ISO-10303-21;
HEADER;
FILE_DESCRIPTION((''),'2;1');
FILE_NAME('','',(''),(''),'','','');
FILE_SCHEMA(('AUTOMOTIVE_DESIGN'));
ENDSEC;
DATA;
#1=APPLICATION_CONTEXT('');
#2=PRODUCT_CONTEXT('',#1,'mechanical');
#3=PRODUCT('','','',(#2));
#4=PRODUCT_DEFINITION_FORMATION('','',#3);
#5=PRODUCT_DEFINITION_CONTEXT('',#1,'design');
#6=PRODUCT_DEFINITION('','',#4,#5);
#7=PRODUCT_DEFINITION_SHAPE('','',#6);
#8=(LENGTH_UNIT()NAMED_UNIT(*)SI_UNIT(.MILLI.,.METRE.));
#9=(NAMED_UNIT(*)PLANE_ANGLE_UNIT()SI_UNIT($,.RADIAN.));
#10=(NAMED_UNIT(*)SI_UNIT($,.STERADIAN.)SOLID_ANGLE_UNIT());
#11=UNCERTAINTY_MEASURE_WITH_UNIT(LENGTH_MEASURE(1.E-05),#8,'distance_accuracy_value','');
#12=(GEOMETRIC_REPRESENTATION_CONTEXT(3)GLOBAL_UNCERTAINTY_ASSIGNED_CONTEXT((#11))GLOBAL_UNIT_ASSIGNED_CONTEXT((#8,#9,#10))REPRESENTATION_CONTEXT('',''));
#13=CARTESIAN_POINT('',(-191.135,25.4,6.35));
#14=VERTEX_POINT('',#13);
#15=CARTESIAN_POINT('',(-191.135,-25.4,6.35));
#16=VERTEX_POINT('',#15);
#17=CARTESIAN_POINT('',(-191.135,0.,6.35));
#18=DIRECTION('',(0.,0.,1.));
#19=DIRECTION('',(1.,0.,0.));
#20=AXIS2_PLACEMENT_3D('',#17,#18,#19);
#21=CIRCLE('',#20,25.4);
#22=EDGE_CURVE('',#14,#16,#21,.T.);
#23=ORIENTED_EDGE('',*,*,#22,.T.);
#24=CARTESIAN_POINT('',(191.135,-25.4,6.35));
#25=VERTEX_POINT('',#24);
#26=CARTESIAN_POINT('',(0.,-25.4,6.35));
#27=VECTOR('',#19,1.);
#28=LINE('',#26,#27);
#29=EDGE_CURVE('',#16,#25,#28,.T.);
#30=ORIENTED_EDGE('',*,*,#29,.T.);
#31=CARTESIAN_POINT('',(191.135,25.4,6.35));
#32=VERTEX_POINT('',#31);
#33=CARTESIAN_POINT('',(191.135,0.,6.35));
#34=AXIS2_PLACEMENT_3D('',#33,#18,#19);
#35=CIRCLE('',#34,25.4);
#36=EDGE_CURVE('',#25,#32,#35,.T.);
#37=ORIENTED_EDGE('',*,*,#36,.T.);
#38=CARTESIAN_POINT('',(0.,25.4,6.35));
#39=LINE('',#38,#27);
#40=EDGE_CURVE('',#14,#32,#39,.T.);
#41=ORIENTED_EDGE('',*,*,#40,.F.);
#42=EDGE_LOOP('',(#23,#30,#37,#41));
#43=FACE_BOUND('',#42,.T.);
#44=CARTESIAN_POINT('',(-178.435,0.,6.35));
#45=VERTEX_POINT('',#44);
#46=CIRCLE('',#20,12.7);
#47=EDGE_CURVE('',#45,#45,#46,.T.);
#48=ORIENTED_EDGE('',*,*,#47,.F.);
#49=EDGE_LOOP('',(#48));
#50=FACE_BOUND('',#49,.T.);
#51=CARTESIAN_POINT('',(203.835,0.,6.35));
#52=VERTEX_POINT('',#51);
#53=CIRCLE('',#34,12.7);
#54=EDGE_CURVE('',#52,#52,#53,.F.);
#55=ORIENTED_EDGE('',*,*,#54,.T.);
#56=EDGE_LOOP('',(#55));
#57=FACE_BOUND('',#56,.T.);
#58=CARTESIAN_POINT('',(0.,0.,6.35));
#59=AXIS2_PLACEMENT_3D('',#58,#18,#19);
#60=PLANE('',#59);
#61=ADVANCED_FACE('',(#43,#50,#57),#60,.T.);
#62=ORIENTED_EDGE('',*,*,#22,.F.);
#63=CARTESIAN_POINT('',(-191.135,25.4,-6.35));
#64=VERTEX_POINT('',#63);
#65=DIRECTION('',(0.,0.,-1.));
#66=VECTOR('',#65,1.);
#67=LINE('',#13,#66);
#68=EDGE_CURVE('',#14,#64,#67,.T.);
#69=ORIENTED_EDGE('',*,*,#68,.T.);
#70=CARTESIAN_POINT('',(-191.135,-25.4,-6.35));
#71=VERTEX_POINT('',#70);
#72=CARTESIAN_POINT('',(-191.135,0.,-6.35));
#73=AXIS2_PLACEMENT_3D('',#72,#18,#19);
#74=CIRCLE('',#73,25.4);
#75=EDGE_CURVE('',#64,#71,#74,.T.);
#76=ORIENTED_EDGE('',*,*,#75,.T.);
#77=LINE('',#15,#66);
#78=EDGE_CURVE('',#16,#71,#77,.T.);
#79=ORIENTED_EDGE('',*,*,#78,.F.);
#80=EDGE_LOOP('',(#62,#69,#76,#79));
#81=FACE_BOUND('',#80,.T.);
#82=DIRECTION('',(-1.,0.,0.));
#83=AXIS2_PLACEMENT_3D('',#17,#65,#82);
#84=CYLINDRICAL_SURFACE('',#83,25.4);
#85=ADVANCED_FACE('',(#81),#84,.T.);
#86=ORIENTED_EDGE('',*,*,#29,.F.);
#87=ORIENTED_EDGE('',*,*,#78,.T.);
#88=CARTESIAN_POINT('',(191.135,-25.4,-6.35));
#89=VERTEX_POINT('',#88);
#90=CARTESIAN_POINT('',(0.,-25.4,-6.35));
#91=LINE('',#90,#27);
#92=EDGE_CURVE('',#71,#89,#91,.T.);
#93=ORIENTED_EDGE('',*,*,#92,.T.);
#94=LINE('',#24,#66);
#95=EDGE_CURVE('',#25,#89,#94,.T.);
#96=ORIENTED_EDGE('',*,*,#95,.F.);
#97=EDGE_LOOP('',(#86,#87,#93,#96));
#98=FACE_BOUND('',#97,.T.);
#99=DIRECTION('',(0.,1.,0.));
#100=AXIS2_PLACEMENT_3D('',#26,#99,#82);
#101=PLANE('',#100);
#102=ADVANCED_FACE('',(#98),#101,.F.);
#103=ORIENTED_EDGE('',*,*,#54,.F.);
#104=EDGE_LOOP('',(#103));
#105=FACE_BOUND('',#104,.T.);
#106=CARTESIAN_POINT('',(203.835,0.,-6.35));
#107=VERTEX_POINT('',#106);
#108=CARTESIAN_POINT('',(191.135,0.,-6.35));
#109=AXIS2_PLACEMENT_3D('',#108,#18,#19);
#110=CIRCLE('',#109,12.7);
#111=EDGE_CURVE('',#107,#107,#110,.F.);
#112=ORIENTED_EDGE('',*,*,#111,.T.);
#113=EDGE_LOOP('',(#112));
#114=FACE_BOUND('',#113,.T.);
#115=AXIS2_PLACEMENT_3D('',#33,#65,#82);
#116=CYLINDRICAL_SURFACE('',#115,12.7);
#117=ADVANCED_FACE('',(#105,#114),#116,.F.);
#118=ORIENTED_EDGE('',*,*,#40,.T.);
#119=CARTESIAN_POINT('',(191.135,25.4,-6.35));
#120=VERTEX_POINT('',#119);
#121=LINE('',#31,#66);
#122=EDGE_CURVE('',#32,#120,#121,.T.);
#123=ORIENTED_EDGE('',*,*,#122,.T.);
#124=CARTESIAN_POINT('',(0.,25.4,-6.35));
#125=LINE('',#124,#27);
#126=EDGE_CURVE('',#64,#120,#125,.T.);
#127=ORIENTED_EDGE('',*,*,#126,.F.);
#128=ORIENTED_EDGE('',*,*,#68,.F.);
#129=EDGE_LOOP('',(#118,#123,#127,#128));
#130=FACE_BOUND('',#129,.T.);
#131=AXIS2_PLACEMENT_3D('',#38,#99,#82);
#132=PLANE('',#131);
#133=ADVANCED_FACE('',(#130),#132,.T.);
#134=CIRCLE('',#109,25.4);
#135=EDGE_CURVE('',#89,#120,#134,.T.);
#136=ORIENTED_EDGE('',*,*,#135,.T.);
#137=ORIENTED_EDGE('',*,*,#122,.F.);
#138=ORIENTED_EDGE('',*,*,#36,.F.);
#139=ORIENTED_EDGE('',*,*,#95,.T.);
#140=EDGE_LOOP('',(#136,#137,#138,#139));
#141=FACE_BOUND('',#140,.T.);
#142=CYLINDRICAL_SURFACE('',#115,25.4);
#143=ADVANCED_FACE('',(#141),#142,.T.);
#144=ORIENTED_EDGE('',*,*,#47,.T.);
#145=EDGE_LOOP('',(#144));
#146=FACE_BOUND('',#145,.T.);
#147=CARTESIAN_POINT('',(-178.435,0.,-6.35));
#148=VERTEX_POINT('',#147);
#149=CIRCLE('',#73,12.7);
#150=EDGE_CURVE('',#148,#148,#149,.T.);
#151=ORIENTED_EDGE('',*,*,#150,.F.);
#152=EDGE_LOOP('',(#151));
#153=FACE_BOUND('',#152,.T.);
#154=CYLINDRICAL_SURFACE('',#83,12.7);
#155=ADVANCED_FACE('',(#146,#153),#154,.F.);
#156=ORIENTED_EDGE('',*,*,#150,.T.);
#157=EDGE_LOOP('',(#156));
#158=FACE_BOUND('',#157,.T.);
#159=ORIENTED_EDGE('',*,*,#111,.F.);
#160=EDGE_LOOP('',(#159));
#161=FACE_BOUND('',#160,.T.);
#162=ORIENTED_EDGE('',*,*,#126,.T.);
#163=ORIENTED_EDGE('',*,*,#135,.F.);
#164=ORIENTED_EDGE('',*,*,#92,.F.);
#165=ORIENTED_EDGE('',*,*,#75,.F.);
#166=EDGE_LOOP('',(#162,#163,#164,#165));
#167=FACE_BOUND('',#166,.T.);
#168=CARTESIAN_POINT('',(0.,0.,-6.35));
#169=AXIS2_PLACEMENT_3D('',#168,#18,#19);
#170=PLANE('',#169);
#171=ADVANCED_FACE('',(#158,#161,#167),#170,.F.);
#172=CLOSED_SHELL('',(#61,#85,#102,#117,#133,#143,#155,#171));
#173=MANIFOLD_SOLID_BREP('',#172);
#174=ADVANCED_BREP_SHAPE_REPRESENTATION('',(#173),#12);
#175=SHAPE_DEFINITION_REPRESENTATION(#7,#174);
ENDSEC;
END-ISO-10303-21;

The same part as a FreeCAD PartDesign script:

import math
import FreeCAD as App
import Part
import Sketcher

V = App.Vector
Q = App.Units.Quantity

doc = App.newDocument("Part")
body = doc.addObject("PartDesign::Body", "Body")

sketch1 = doc.addObject("Sketcher::SketchObject", "Sketch")
body.addObject(sketch1)
sketch1.AttachmentSupport = (doc.XY_Plane, [""])
sketch1.MapMode = "FlatFace"
sketch1.addGeometry([
    Part.LineSegment(V(191, 25, 0), V(-191, 25, 0)),
    Part.ArcOfCircle(Part.Circle(V(-191, 0, 0), V(0, 0, 1), 25), math.radians(90), math.radians(270)),
    Part.LineSegment(V(-191, -25, 0), V(191, -25, 0)),
    Part.ArcOfCircle(Part.Circle(V(191, 0, 0), V(0, 0, 1), 25), math.radians(-90), math.radians(90)),
    Part.Circle(V(191, 0, 0), V(0, 0, 1), 13),
    Part.Circle(V(-191, 0, 0), V(0, 0, 1), 13),
], False)
sketch1.addConstraint([
    Sketcher.Constraint("Tangent", 0, 2, 1, 1),
    Sketcher.Constraint("Tangent", 1, 2, 2, 1),
    Sketcher.Constraint("Tangent", 2, 2, 3, 1),
    Sketcher.Constraint("Tangent", 3, 2, 0, 1),
    Sketcher.Constraint("Horizontal", 0),
    Sketcher.Constraint("Horizontal", 2),
    Sketcher.Constraint("Coincident", 4, 3, 3, 3),
    Sketcher.Constraint("Coincident", 5, 3, 1, 3),
    Sketcher.Constraint("Equal", 4, 5),
    Sketcher.Constraint("Symmetric", 1, 3, 3, 3, -1, 1),
    Sketcher.Constraint("Diameter", 4, Q("1 in")),
    Sketcher.Constraint("Radius", 1, Q("1 in")),
    Sketcher.Constraint("DistanceX", 0, 2, 0, 1, Q("15.05 in")),
])
pad1 = doc.addObject("PartDesign::Pad", "Pad")
body.addObject(pad1)
pad1.Profile = sketch1
pad1.Length = Q("0.5 in")
pad1.Midplane = True

doc.recompute()
